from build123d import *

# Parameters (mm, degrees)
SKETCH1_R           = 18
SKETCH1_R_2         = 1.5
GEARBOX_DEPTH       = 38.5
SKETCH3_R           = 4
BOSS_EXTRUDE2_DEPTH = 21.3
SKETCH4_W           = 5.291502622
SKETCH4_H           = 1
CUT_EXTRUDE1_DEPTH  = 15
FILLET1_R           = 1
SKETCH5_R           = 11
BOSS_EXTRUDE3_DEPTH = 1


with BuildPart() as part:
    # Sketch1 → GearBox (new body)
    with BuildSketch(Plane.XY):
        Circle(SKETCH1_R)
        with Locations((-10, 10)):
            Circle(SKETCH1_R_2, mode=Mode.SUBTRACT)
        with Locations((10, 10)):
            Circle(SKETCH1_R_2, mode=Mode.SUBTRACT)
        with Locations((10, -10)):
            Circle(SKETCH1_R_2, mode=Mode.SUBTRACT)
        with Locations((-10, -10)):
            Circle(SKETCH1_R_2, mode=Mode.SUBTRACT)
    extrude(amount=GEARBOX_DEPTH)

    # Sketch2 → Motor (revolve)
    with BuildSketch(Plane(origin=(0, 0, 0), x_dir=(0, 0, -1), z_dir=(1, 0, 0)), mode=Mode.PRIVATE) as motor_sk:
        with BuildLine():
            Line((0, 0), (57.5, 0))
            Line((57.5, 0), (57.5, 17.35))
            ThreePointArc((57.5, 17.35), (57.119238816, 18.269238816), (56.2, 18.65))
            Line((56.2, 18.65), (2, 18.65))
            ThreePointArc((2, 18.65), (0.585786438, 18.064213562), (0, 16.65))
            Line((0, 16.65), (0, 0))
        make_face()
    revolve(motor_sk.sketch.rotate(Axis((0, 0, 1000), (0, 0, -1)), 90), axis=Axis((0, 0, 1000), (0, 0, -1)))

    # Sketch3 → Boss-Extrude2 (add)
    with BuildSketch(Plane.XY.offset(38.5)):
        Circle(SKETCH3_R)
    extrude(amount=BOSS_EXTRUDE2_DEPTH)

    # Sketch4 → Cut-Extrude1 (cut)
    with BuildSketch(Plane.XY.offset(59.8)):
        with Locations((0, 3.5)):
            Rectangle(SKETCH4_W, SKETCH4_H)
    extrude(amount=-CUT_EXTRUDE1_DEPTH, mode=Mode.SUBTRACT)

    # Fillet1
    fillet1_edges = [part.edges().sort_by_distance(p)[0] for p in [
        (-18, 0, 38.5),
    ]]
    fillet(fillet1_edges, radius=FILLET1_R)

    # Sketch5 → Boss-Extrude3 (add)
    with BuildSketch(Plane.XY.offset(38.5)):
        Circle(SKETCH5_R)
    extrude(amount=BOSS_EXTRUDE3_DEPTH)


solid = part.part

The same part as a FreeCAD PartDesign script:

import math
import FreeCAD as App
import Part
import Sketcher
from FreeCAD import Vector
Q = App.Units.Quantity


def edges_at(feature, points):
    """Names of the edges that pass closest to the given points."""
    edges = feature.Shape.Edges
    near = lambda p: min(range(len(edges)), key=lambda i: edges[i].distToShape(Part.Vertex(*p))[0])
    return sorted({f"Edge{near(p) + 1}" for p in points})


def add_polygon(sketch, points):
    """Adds a closed chain of lines whose ends are joined by coincident constraints."""
    first, n = sketch.GeometryCount, len(points)
    for a, b in zip(points, points[1:] + points[:1]):
        sketch.addGeometry(Part.LineSegment(App.Vector(*a, 0), App.Vector(*b, 0)), False)
    for i in range(n):
        sketch.addConstraint(Sketcher.Constraint("Coincident", first + i, 2, first + (i + 1) % n, 1))

doc = App.newDocument("Part")
body = doc.addObject("PartDesign::Body", "Body")

sketch1 = body.newObject("Sketcher::SketchObject", "Sketch")
sketch1.AttachmentSupport = (doc.getObject("XY_Plane"), [""])
sketch1.MapMode = "FlatFace"
sketch1.addGeometry(Part.Circle(Vector(0, 0, 0), Vector(0, 0, 1), 18), False)
sketch1.addGeometry(Part.Circle(Vector(-10, -10, 0), Vector(0, 0, 1), 1.5), False)
sketch1.addGeometry(Part.Circle(Vector(10, -10, 0), Vector(0, 0, 1), 1.5), False)
sketch1.addGeometry(Part.Circle(Vector(-10, 10, 0), Vector(0, 0, 1), 1.5), False)
sketch1.addGeometry(Part.Circle(Vector(10, 10, 0), Vector(0, 0, 1), 1.5), False)
sketch1.addConstraint(Sketcher.Constraint("Coincident", 0, 3, -1, 1))
sketch1.addConstraint(Sketcher.Constraint("Equal", 1, 2))
sketch1.addConstraint(Sketcher.Constraint("Equal", 2, 3))
sketch1.addConstraint(Sketcher.Constraint("Equal", 3, 4))
sketch1.addConstraint(Sketcher.Constraint("Symmetric", 2, 3, 3, 3, -1, 1))
sketch1.addConstraint(Sketcher.Constraint("Symmetric", 1, 3, 4, 3, -1, 1))
sketch1.addConstraint(Sketcher.Constraint("Symmetric", 1, 3, 2, 3, -2))
sketch1.addConstraint(Sketcher.Constraint("Diameter", 0, Q("36 mm")))
sketch1.addConstraint(Sketcher.Constraint("Diameter", 1, Q("3 mm")))
sketch1.addConstraint(Sketcher.Constraint("DistanceX", 1, 3, -1, 1, Q("10 mm")))
sketch1.addConstraint(Sketcher.Constraint("DistanceY", 1, 3, -1, 1, Q("10 mm")))
pad1 = body.newObject("PartDesign::Pad", "Pad")
pad1.Profile = sketch1
pad1.Length = 38.5

sketch2 = body.newObject("Sketcher::SketchObject", "Sketch001")
sketch2.AttachmentSupport = (doc.getObject("YZ_Plane"), [""])
sketch2.MapMode = "FlatFace"
sketch2.addGeometry(Part.LineSegment(Vector(0, 0, 0), Vector(0, -57.5, 0)), False)
sketch2.addGeometry(Part.LineSegment(Vector(0, -57.5, 0), Vector(17.4, -57.5, 0)), False)
sketch2.addGeometry(Part.ArcOfCircle(Part.Circle(Vector(17.4, -56.2, 0), Vector(0, 0, 1), 1.3), math.radians(-90), math.radians(0)), False)
sketch2.addGeometry(Part.LineSegment(Vector(18.6, -56.2, 0), Vector(18.6, -2, 0)), False)
sketch2.addGeometry(Part.ArcOfCircle(Part.Circle(Vector(16.6, -2, 0), Vector(0, 0, 1), 2), math.radians(0), math.radians(90)), False)
sketch2.addGeometry(Part.LineSegment(Vector(16.6, 0, 0), Vector(0, 0, 0)), False)
sketch2.addConstraint(Sketcher.Constraint("Coincident", 0, 2, 1, 1))
sketch2.addConstraint(Sketcher.Constraint("Tangent", 1, 2, 2, 1))
sketch2.addConstraint(Sketcher.Constraint("Tangent", 2, 2, 3, 1))
sketch2.addConstraint(Sketcher.Constraint("Tangent", 3, 2, 4, 1))
sketch2.addConstraint(Sketcher.Constraint("Tangent", 4, 2, 5, 1))
sketch2.addConstraint(Sketcher.Constraint("Coincident", 5, 2, 0, 1))
sketch2.addConstraint(Sketcher.Constraint("Vertical", 0))
sketch2.addConstraint(Sketcher.Constraint("Horizontal", 1))
sketch2.addConstraint(Sketcher.Constraint("Vertical", 3))
sketch2.addConstraint(Sketcher.Constraint("Horizontal", 5))
sketch2.addConstraint(Sketcher.Constraint("Coincident", 5, 2, -1, 1))
sketch2.addConstraint(Sketcher.Constraint("Radius", 4, Q("2 mm")))
sketch2.addConstraint(Sketcher.Constraint("Radius", 2, Q("1.3 mm")))
sketch2.addConstraint(Sketcher.Constraint("DistanceY", 0, 2, 0, 1, Q("57.5 mm")))
sketch2.addConstraint(Sketcher.Constraint("DistanceX", 1, 1, 1, 2, Q("17.35 mm")))
revolution = body.newObject("PartDesign::Revolution", "Revolution")
revolution.Profile = sketch2
revolution.ReferenceAxis = (sketch2, ["V_Axis"])
revolution.Angle = 360

sketch3 = body.newObject("Sketcher::SketchObject", "Sketch002")
sketch3.AttachmentSupport = (doc.getObject("XY_Plane"), [""])
sketch3.MapMode = "FlatFace"
sketch3.AttachmentOffset = App.Placement(Vector(0, 0, 38.5), App.Rotation())
sketch3.addGeometry(Part.Circle(Vector(0, 0, 0), Vector(0, 0, 1), 4), False)
sketch3.addConstraint(Sketcher.Constraint("Coincident", 0, 3, -1, 1))
sketch3.addConstraint(Sketcher.Constraint("Diameter", 0, Q("8 mm")))
pad2 = body.newObject("PartDesign::Pad", "Pad001")
pad2.Profile = sketch3
pad2.Length = 21.3

sketch4 = body.newObject("Sketcher::SketchObject", "Sketch003")
sketch4.AttachmentSupport = (doc.getObject("XY_Plane"), [""])
sketch4.MapMode = "FlatFace"
sketch4.AttachmentOffset = App.Placement(Vector(0, 0, 59.8), App.Rotation())
add_polygon(sketch4, [(-2.6, 4), (-2.6, 3), (2.6, 3), (2.6, 4)])
sketch4.addConstraint(Sketcher.Constraint("Vertical", 0))
sketch4.addConstraint(Sketcher.Constraint("Horizontal", 1))
sketch4.addConstraint(Sketcher.Constraint("Vertical", 2))
sketch4.addConstraint(Sketcher.Constraint("Horizontal", 3))
sketch4.addConstraint(Sketcher.Constraint("DistanceY", 0, 2, 0, 1, Q("1 mm")))
sketch4.addConstraint(Sketcher.Constraint("DistanceY", -1, 1, 0, 2, Q("3 mm")))
sketch4.addConstraint(Sketcher.Constraint("DistanceX", 1, 1, 1, 2, Q("5.291503 mm")))
sketch4.addConstraint(Sketcher.Constraint("DistanceX", 0, 2, -1, 1, Q("2.645751 mm")))
pocket1 = body.newObject("PartDesign::Pocket", "Pocket")
pocket1.Profile = sketch4
pocket1.Length = 15
doc.recompute()

fillet = body.newObject("PartDesign::Fillet", "Fillet")
fillet.Base = (pocket1, edges_at(pocket1, [(-18, 0, 38.5)]))
fillet.Radius = 1

sketch5 = body.newObject("Sketcher::SketchObject", "Sketch004")
sketch5.AttachmentSupport = (doc.getObject("XY_Plane"), [""])
sketch5.MapMode = "FlatFace"
sketch5.AttachmentOffset = App.Placement(Vector(0, 0, 38.5), App.Rotation())
sketch5.addGeometry(Part.Circle(Vector(0, 0, 0), Vector(0, 0, 1), 11), False)
sketch5.addConstraint(Sketcher.Constraint("Coincident", 0, 3, -1, 1))
sketch5.addConstraint(Sketcher.Constraint("Diameter", 0, Q("22 mm")))
pad3 = body.newObject("PartDesign::Pad", "Pad002")
pad3.Profile = sketch5
pad3.Length = 1

doc.recompute()
